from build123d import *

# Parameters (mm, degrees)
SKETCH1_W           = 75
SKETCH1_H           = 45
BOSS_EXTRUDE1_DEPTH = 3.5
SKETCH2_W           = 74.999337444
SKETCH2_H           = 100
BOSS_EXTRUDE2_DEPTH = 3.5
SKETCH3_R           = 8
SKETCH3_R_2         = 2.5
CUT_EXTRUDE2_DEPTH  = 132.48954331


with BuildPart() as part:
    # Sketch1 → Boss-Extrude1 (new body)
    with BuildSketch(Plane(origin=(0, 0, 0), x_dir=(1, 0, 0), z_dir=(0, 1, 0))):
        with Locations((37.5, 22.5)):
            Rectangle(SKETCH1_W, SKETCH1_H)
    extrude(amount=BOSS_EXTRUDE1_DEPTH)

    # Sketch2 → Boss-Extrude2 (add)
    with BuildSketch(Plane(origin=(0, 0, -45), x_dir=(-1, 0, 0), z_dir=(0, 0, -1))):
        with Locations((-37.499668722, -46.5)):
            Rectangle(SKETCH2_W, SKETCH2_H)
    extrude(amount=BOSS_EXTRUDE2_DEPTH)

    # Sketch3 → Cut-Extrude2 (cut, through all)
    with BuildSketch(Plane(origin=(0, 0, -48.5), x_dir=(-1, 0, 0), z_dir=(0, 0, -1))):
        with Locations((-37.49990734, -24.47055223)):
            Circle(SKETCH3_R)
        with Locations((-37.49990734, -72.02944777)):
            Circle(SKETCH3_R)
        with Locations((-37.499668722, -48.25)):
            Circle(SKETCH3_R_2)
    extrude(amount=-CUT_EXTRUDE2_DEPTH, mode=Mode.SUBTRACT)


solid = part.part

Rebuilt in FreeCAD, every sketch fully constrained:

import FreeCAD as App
import Part
import Sketcher

V = App.Vector
Q = App.Units.Quantity


def add_polygon(sketch, points):
    """Adds a closed chain of lines whose ends are joined by coincident constraints."""
    first, n = sketch.GeometryCount, len(points)
    for a, b in zip(points, points[1:] + points[:1]):
        sketch.addGeometry(Part.LineSegment(App.Vector(*a, 0), App.Vector(*b, 0)), False)
    for i in range(n):
        sketch.addConstraint(Sketcher.Constraint("Coincident", first + i, 2, first + (i + 1) % n, 1))

doc = App.newDocument("Part")
params = doc.addObject("Spreadsheet::Sheet", "Params")
for row, (alias, value) in enumerate([
    ("sketch1_width", "75 mm"),
    ("sketch1_height", "45 mm"),
    ("pad1_length", "3.5 mm"),
    ("sketch2_height", "100 mm"),
    ("pad2_length", "3.5 mm"),
    ("sketch3_diameter", "16 mm"),
    ("sketch3_diameter2", "5 mm"),
], start=1):
    params.set(f"A{row}", alias)
    params.set(f"B{row}", "=" + value)
    params.setAlias(f"B{row}", alias)

body = doc.addObject("PartDesign::Body", "Body")

sketch1 = body.newObject("Sketcher::SketchObject", "Sketch")
sketch1.AttachmentSupport = (doc.getObject("XZ_Plane"), [""])
sketch1.MapMode = "FlatFace"
add_polygon(sketch1, [(0, -45), (0, 0), (75, 0), (75, -45)])
sketch1.addConstraint([
    Sketcher.Constraint("Vertical", 0),
    Sketcher.Constraint("Horizontal", 1),
    Sketcher.Constraint("Vertical", 2),
    Sketcher.Constraint("Horizontal", 3),
    Sketcher.Constraint("Coincident", 0, 2, -1, 1),
    Sketcher.Constraint("DistanceX", 1, 1, 1, 2, Q("75 mm")),
    Sketcher.Constraint("DistanceY", 0, 1, 0, 2, Q("45 mm")),
])
sketch1.setExpression("Constraints[9]", "Params.sketch1_width")
sketch1.setExpression("Constraints[10]", "Params.sketch1_height")
pad1 = body.newObject("PartDesign::Pad", "Pad")
pad1.Profile = sketch1
pad1.setExpression("Length", "Params.pad1_length")
pad1.Reversed = True

sketch2 = body.newObject("Sketcher::SketchObject", "Sketch001")
sketch2.AttachmentSupport = (doc.getObject("XY_Plane"), [""])
sketch2.MapMode = "FlatFace"
sketch2.AttachmentOffset = App.Placement(V(0, 0, -45), App.Rotation())
add_polygon(sketch2, [(75, 4), (75, -96), (0, -96), (0, 4)])
sketch2.addConstraint([
    Sketcher.Constraint("Vertical", 0),
    Sketcher.Constraint("Horizontal", 1),
    Sketcher.Constraint("Vertical", 2),
    Sketcher.Constraint("Horizontal", 3),
    Sketcher.Constraint("PointOnObject", 1, 2, -2),
    Sketcher.Constraint("DistanceY", 0, 2, 0, 1, Q("100 mm")),
    Sketcher.Constraint("DistanceY", 0, 2, -1, 1, Q("96.5 mm")),
    Sketcher.Constraint("DistanceX", 1, 2, 1, 1, Q("74.999337 mm")),
])
sketch2.setExpression("Constraints[9]", "Params.sketch2_height")
pad2 = body.newObject("PartDesign::Pad", "Pad001")
pad2.Profile = sketch2
pad2.setExpression("Length", "Params.pad2_length")
pad2.Reversed = True

sketch3 = body.newObject("Sketcher::SketchObject", "Sketch002")
sketch3.AttachmentSupport = (doc.getObject("XY_Plane"), [""])
sketch3.MapMode = "FlatFace"
sketch3.AttachmentOffset = App.Placement(V(0, 0, -48.5), App.Rotation())
sketch3.addGeometry([
    Part.Circle(V(37.5, -24.5, 0), V(0, 0, 1), 8),
    Part.Circle(V(37.5, -72, 0), V(0, 0, 1), 8),
    Part.Circle(V(37.5, -48.2, 0), V(0, 0, 1), 2.5),
], False)
sketch3.addConstraint([
    Sketcher.Constraint("Equal", 0, 1),
    Sketcher.Constraint("Vertical", 0, 3, 1, 3),
    Sketcher.Constraint("Diameter", 0, Q("16 mm")),
    Sketcher.Constraint("Diameter", 2, Q("5 mm")),
    Sketcher.Constraint("DistanceY", 2, 3, -1, 1, Q("48.25 mm")),
    Sketcher.Constraint("DistanceX", -1, 1, 2, 3, Q("37.499669 mm")),
    Sketcher.Constraint("DistanceX", 2, 3, 0, 3, Q("0.000239 mm")),
    Sketcher.Constraint("DistanceY", 0, 3, -1, 1, Q("24.470552 mm")),
    Sketcher.Constraint("DistanceY", 1, 3, -1, 1, Q("72.029448 mm")),
])
sketch3.setExpression("Constraints[2]", "Params.sketch3_diameter")
sketch3.setExpression("Constraints[3]", "Params.sketch3_diameter2")
pocket1 = body.newObject("PartDesign::Pocket", "Pocket")
pocket1.Profile = sketch3
pocket1.Type = "ThroughAll"
pocket1.Reversed = True

doc.recompute()
